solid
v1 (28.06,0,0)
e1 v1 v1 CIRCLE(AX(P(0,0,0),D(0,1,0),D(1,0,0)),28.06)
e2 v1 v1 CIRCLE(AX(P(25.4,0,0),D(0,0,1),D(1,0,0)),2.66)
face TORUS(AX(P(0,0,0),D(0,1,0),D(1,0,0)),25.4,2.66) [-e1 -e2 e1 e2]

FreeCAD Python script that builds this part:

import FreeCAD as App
import Part
import Sketcher
from FreeCAD import Vector

doc = App.newDocument("Part")
params = doc.addObject("Spreadsheet::Sheet", "Params")
for row, (alias, value) in enumerate([
    ("sketch1_diameter", "5.32 mm"),
    ("revolution_angle", "360 deg"),
], start=1):
    params.set(f"A{row}", alias)
    params.set(f"B{row}", "=" + value)
    params.setAlias(f"B{row}", alias)

body = doc.addObject("PartDesign::Body", "Body")

sketch1 = body.newObject("Sketcher::SketchObject", "Sketch")
sketch1.AttachmentSupport = (doc.getObject("XY_Plane"), [""])
sketch1.MapMode = "FlatFace"
sketch1.addGeometry(Part.Circle(Vector(25.4, 0, 0), Vector(0, 0, 1), 2.66), False)
sketch1.addConstraint([
    Sketcher.Constraint("PointOnObject", 0, 3, -1),
    Sketcher.Constraint("Diameter", 0, 5.32),
    Sketcher.Constraint("DistanceX", -1, 1, 0, 3, 25.4),
])
sketch1.setExpression("Constraints[1]", "Params.sketch1_diameter")
revolution = body.newObject("PartDesign::Revolution", "Revolution")
revolution.Profile = sketch1
revolution.ReferenceAxis = (sketch1, ["V_Axis"])
revolution.setExpression("Angle", "Params.revolution_angle")

doc.recompute()
